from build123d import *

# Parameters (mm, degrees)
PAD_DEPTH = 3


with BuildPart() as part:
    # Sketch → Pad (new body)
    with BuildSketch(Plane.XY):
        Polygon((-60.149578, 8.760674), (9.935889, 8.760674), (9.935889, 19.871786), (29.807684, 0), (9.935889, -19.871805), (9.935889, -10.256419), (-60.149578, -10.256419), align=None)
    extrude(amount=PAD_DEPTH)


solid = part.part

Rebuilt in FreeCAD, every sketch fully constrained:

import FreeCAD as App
import Part
import Sketcher
from FreeCAD import Vector
Q = App.Units.Quantity


def add_polygon(sketch, points):
    """Adds a closed chain of lines whose ends are joined by coincident constraints."""
    first, n = sketch.GeometryCount, len(points)
    for a, b in zip(points, points[1:] + points[:1]):
        sketch.addGeometry(Part.LineSegment(App.Vector(*a, 0), App.Vector(*b, 0)), False)
    for i in range(n):
        sketch.addConstraint(Sketcher.Constraint("Coincident", first + i, 2, first + (i + 1) % n, 1))

doc = App.newDocument("Part")
body = doc.addObject("PartDesign::Body", "Body")

sketch1 = doc.addObject("Sketcher::SketchObject", "Sketch")
body.addObject(sketch1)
sketch1.AttachmentSupport = (doc.XY_Plane, [""])
sketch1.MapMode = "FlatFace"
add_polygon(sketch1, [(10, 9), (-60, 9), (-60, -10), (10, -10), (10, -20), (30, 0), (10, 20)])
sketch1.addConstraint([
    Sketcher.Constraint("Horizontal", 0),
    Sketcher.Constraint("Vertical", 1),
    Sketcher.Constraint("Horizontal", 2),
    Sketcher.Constraint("Vertical", 3),
    Sketcher.Constraint("Vertical", 6),
    Sketcher.Constraint("PointOnObject", 4, 2, -1),
    Sketcher.Constraint("Perpendicular", 4, 5),
    Sketcher.Constraint("Vertical", 3, 2, 5, 2),
    Sketcher.Constraint("Angle", 4, Q("45.000014 deg")),
    Sketcher.Constraint("Distance", 4, Q("28.102969 mm")),
    Sketcher.Constraint("DistanceX", 0, 2, 0, 1, Q("70.085467 mm")),
    Sketcher.Constraint("DistanceY", 1, 2, 1, 1, Q("19.017093 mm")),
    Sketcher.Constraint("DistanceY", 3, 2, 3, 1, Q("9.615386 mm")),
    Sketcher.Constraint("DistanceX", -1, 1, 2, 2, Q("9.935889 mm")),
])
pad1 = doc.addObject("PartDesign::Pad", "Pad")
body.addObject(pad1)
pad1.Profile = sketch1
pad1.Length = 3

doc.recompute()
